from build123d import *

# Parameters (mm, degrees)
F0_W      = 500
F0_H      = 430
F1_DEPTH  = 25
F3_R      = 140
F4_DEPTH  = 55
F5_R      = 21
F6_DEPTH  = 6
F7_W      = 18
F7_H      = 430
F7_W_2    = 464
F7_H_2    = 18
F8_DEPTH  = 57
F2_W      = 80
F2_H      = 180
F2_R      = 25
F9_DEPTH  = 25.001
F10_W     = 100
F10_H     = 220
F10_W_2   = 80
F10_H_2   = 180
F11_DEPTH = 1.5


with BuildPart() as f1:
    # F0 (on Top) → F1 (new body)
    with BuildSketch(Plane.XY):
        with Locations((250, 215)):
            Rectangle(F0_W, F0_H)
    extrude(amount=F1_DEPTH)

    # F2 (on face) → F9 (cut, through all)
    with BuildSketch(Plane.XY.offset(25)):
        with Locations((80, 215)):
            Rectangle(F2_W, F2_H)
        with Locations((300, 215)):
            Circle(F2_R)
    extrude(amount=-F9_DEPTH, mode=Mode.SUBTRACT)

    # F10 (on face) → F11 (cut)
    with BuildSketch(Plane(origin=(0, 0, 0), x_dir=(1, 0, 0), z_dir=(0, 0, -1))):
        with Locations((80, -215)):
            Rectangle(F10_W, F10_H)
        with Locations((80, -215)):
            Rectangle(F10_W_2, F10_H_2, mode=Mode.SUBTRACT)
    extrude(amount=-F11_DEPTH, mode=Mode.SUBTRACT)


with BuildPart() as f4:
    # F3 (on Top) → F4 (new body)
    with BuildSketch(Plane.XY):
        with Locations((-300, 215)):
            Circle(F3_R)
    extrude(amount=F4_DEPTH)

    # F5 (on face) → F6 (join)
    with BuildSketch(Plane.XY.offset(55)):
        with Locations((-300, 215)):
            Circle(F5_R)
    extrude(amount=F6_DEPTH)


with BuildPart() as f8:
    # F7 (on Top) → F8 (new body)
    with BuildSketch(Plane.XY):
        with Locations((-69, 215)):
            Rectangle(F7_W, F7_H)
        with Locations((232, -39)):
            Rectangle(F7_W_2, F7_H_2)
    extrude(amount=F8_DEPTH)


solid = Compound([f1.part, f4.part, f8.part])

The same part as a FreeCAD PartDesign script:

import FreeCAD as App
import Part
import Sketcher
from FreeCAD import Vector

doc = App.newDocument("Part")
body = doc.addObject("PartDesign::Body", "Body")

# Sketch on XY plane
sketch1 = doc.addObject("Sketcher::SketchObject", "Sketch")
body.addObject(sketch1)
sketch1.AttachmentSupport = (doc.XY_Plane, [""])
sketch1.MapMode = "FlatFace"
sketch1.addGeometry([
    Part.LineSegment(Vector(0, 430, 0), Vector(0, 0, 0)),
    Part.LineSegment(Vector(0, 0, 0), Vector(500, 0, 0)),
    Part.LineSegment(Vector(500, 0, 0), Vector(500, 430, 0)),
    Part.LineSegment(Vector(500, 430, 0), Vector(0, 430, 0)),
], False)
sketch1.addConstraint([
    Sketcher.Constraint("Coincident", 0, 2, 1, 1),
    Sketcher.Constraint("Coincident", 1, 2, 2, 1),
    Sketcher.Constraint("Coincident", 2, 2, 3, 1),
    Sketcher.Constraint("Coincident", 3, 2, 0, 1),
    Sketcher.Constraint("Vertical", 0),
    Sketcher.Constraint("Horizontal", 1),
    Sketcher.Constraint("Vertical", 2),
    Sketcher.Constraint("Horizontal", 3),
    Sketcher.Constraint("Coincident", 0, 2, -1, 1),
    Sketcher.Constraint("DistanceX", 1, 1, 1, 2, 500.0),
    Sketcher.Constraint("DistanceY", 0, 2, 0, 1, 430.0),
])
pad1 = doc.addObject("PartDesign::Pad", "Pad")
body.addObject(pad1)
pad1.Profile = sketch1
pad1.Length = 25

# Sketch on XY plane
sketch2 = doc.addObject("Sketcher::SketchObject", "Sketch001")
body.addObject(sketch2)
sketch2.AttachmentSupport = (doc.XY_Plane, [""])
sketch2.MapMode = "FlatFace"
sketch2.AttachmentOffset = App.Placement(Vector(0, 0, 25), App.Rotation())
sketch2.addGeometry([
    Part.LineSegment(Vector(40, 305, 0), Vector(40, 125, 0)),  # 0
    Part.LineSegment(Vector(40, 125, 0), Vector(120, 125, 0)),  # 1
    Part.LineSegment(Vector(120, 125, 0), Vector(120, 305, 0)),  # 2
    Part.LineSegment(Vector(120, 305, 0), Vector(40, 305, 0)),  # 3
    Part.Circle(Vector(300, 215, 0), Vector(0, 0, 1), 25),  # 4
], False)
sketch2.addConstraint([
    Sketcher.Constraint("Coincident", 0, 2, 1, 1),
    Sketcher.Constraint("Coincident", 1, 2, 2, 1),
    Sketcher.Constraint("Coincident", 2, 2, 3, 1),
    Sketcher.Constraint("Coincident", 3, 2, 0, 1),
    Sketcher.Constraint("Vertical", 0),
    Sketcher.Constraint("Horizontal", 1),
    Sketcher.Constraint("Vertical", 2),
    Sketcher.Constraint("Horizontal", 3),
    Sketcher.Constraint("Diameter", 4, 50.0),
    Sketcher.Constraint("DistanceX", 1, 1, 1, 2, 80.0),
    Sketcher.Constraint("DistanceY", 0, 2, 0, 1, 180.0),
    Sketcher.Constraint("DistanceX", -1, 1, 4, 3, 300.0),
    Sketcher.Constraint("DistanceY", -1, 1, 4, 3, 215.0),
    Sketcher.Constraint("DistanceX", -1, 1, 0, 2, 40.0),
    Sketcher.Constraint("DistanceY", -1, 1, 0, 2, 125.0),
])
pocket1 = doc.addObject("PartDesign::Pocket", "Pocket")
body.addObject(pocket1)
pocket1.Profile = sketch2
pocket1.Type = "ThroughAll"

# Sketch on XY plane
sketch3 = doc.addObject("Sketcher::SketchObject", "Sketch002")
body.addObject(sketch3)
sketch3.AttachmentSupport = (doc.XY_Plane, [""])
sketch3.MapMode = "FlatFace"
sketch3.addGeometry([
    Part.LineSegment(Vector(30, 105, 0), Vector(30, 325, 0)),  # 0
    Part.LineSegment(Vector(30, 325, 0), Vector(130, 325, 0)),  # 1
    Part.LineSegment(Vector(130, 325, 0), Vector(130, 105, 0)),  # 2
    Part.LineSegment(Vector(130, 105, 0), Vector(30, 105, 0)),  # 3
    Part.LineSegment(Vector(120, 305, 0), Vector(40, 305, 0)),  # 4
    Part.LineSegment(Vector(40, 305, 0), Vector(40, 125, 0)),  # 5
    Part.LineSegment(Vector(40, 125, 0), Vector(120, 125, 0)),  # 6
    Part.LineSegment(Vector(120, 125, 0), Vector(120, 305, 0)),  # 7
], False)
sketch3.addConstraint([
    Sketcher.Constraint("Coincident", 0, 2, 1, 1),
    Sketcher.Constraint("Coincident", 1, 2, 2, 1),
    Sketcher.Constraint("Coincident", 2, 2, 3, 1),
    Sketcher.Constraint("Coincident", 3, 2, 0, 1),
    Sketcher.Constraint("Coincident", 4, 2, 5, 1),
    Sketcher.Constraint("Coincident", 5, 2, 6, 1),
    Sketcher.Constraint("Coincident", 6, 2, 7, 1),
    Sketcher.Constraint("Coincident", 7, 2, 4, 1),
    Sketcher.Constraint("Vertical", 0),
    Sketcher.Constraint("Horizontal", 1),
    Sketcher.Constraint("Vertical", 2),
    Sketcher.Constraint("Horizontal", 3),
    Sketcher.Constraint("Horizontal", 4),
    Sketcher.Constraint("Vertical", 5),
    Sketcher.Constraint("Horizontal", 6),
    Sketcher.Constraint("Vertical", 7),
    Sketcher.Constraint("DistanceX", 1, 1, 1, 2, 100.0),
    Sketcher.Constraint("DistanceX", 4, 2, 4, 1, 80.0),
    Sketcher.Constraint("DistanceY", 0, 1, 0, 2, 220.0),
    Sketcher.Constraint("DistanceY", 5, 2, 5, 1, 180.0),
    Sketcher.Constraint("DistanceX", -1, 1, 0, 2, 30.0),
    Sketcher.Constraint("DistanceY", -1, 1, 0, 2, 325.0),
    Sketcher.Constraint("DistanceX", -1, 1, 4, 2, 40.0),
    Sketcher.Constraint("DistanceY", -1, 1, 4, 2, 305.0),
])
pocket2 = doc.addObject("PartDesign::Pocket", "Pocket001")
body.addObject(pocket2)
pocket2.Profile = sketch3
pocket2.Length = 1.5
pocket2.Reversed = True
body2 = doc.addObject("PartDesign::Body", "Body001")

# Sketch on XY plane
sketch4 = doc.addObject("Sketcher::SketchObject", "Sketch003")
body2.addObject(sketch4)
sketch4.AttachmentSupport = (doc.getObject("XY_Plane001"), [""])
sketch4.MapMode = "FlatFace"
sketch4.addGeometry(Part.Circle(Vector(-300, 215, 0), Vector(0, 0, 1), 140), False)
sketch4.addConstraint([
    Sketcher.Constraint("Diameter", 0, 280.0),
    Sketcher.Constraint("DistanceX", 0, 3, -1, 1, 300.0),
    Sketcher.Constraint("DistanceY", -1, 1, 0, 3, 215.0),
])
pad2 = doc.addObject("PartDesign::Pad", "Pad001")
body2.addObject(pad2)
pad2.Profile = sketch4
pad2.Length = 55

# Sketch on XY plane
sketch5 = doc.addObject("Sketcher::SketchObject", "Sketch004")
body2.addObject(sketch5)
sketch5.AttachmentSupport = (doc.getObject("XY_Plane001"), [""])
sketch5.MapMode = "FlatFace"
sketch5.AttachmentOffset = App.Placement(Vector(0, 0, 55), App.Rotation())
sketch5.addGeometry(Part.Circle(Vector(-300, 215, 0), Vector(0, 0, 1), 21), False)
sketch5.addConstraint([
    Sketcher.Constraint("Diameter", 0, 42.0),
    Sketcher.Constraint("DistanceX", 0, 3, -1, 1, 300.0),
    Sketcher.Constraint("DistanceY", -1, 1, 0, 3, 215.0),
])
pad3 = doc.addObject("PartDesign::Pad", "Pad002")
body2.addObject(pad3)
pad3.Profile = sketch5
pad3.Length = 6
body3 = doc.addObject("PartDesign::Body", "Body002")
body3.AllowCompound = True

# Sketch on XY plane
sketch6 = doc.addObject("Sketcher::SketchObject", "Sketch005")
body3.addObject(sketch6)
sketch6.AttachmentSupport = (doc.getObject("XY_Plane002"), [""])
sketch6.MapMode = "FlatFace"
sketch6.addGeometry([
    Part.LineSegment(Vector(-78, 430, 0), Vector(-78, 0, 0)),  # 0
    Part.LineSegment(Vector(-78, 0, 0), Vector(-60, 0, 0)),  # 1
    Part.LineSegment(Vector(-60, 0, 0), Vector(-60, 430, 0)),  # 2
    Part.LineSegment(Vector(-60, 430, 0), Vector(-78, 430, 0)),  # 3
    Part.LineSegment(Vector(0, -30, 0), Vector(0, -48, 0)),  # 4
    Part.LineSegment(Vector(0, -48, 0), Vector(464, -48, 0)),  # 5
    Part.LineSegment(Vector(464, -48, 0), Vector(464, -30, 0)),  # 6
    Part.LineSegment(Vector(464, -30, 0), Vector(0, -30, 0)),  # 7
], False)
sketch6.addConstraint([
    Sketcher.Constraint("Coincident", 0, 2, 1, 1),
    Sketcher.Constraint("Coincident", 1, 2, 2, 1),
    Sketcher.Constraint("Coincident", 2, 2, 3, 1),
    Sketcher.Constraint("Coincident", 3, 2, 0, 1),
    Sketcher.Constraint("Coincident", 4, 2, 5, 1),
    Sketcher.Constraint("Coincident", 5, 2, 6, 1),
    Sketcher.Constraint("Coincident", 6, 2, 7, 1),
    Sketcher.Constraint("Coincident", 7, 2, 4, 1),
    Sketcher.Constraint("Vertical", 0),
    Sketcher.Constraint("Horizontal", 1),
    Sketcher.Constraint("Vertical", 2),
    Sketcher.Constraint("Horizontal", 3),
    Sketcher.Constraint("Vertical", 4),
    Sketcher.Constraint("Horizontal", 5),
    Sketcher.Constraint("Vertical", 6),
    Sketcher.Constraint("Horizontal", 7),
    Sketcher.Constraint("PointOnObject", 0, 2, -1),
    Sketcher.Constraint("PointOnObject", 4, 2, -2),
    Sketcher.Constraint("Equal", 3, 4),
    Sketcher.Constraint("DistanceX", 1, 1, 1, 2, 18.0),
    Sketcher.Constraint("DistanceX", 5, 1, 5, 2, 464.0),
    Sketcher.Constraint("DistanceY", 0, 2, 0, 1, 430.0),
    Sketcher.Constraint("DistanceX", 0, 2, -1, 1, 78.0),
    Sketcher.Constraint("DistanceY", 4, 2, -1, 1, 48.0),
])
pad4 = doc.addObject("PartDesign::Pad", "Pad003")
body3.addObject(pad4)
pad4.Profile = sketch6
pad4.Length = 57

doc.recompute()
